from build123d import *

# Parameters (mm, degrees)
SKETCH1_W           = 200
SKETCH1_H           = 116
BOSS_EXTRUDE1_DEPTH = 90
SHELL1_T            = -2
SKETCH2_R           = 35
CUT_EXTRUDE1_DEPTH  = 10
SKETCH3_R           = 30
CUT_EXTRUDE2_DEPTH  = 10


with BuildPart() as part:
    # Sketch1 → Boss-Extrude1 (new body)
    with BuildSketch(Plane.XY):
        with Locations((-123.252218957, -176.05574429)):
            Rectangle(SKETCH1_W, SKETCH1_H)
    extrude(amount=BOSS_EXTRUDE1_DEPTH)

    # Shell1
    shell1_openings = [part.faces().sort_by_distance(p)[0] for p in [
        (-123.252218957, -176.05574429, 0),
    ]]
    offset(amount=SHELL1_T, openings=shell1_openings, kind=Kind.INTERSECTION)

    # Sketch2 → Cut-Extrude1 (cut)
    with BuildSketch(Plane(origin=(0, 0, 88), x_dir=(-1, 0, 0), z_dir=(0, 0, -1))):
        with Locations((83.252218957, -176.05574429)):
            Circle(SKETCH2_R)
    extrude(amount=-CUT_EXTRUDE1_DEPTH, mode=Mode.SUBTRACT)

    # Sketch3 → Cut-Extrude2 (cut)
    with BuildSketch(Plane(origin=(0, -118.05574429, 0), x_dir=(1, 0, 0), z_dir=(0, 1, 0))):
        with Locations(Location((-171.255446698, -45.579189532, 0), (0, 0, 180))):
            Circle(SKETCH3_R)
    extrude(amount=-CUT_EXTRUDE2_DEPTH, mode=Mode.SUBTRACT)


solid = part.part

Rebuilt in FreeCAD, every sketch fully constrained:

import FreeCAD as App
import Part
import Sketcher

V = App.Vector


def faces_at(feature, points):
    """Names of the faces that lie closest to the given points."""
    faces = feature.Shape.Faces
    near = lambda p: min(range(len(faces)), key=lambda i: faces[i].distToShape(Part.Vertex(*p))[0])
    return sorted({f"Face{near(p) + 1}" for p in points})


def add_polygon(sketch, points):
    """Adds a closed chain of lines whose ends are joined by coincident constraints."""
    first, n = sketch.GeometryCount, len(points)
    for a, b in zip(points, points[1:] + points[:1]):
        sketch.addGeometry(Part.LineSegment(App.Vector(*a, 0), App.Vector(*b, 0)), False)
    for i in range(n):
        sketch.addConstraint(Sketcher.Constraint("Coincident", first + i, 2, first + (i + 1) % n, 1))

doc = App.newDocument("Part")
params = doc.addObject("Spreadsheet::Sheet", "Params")
for row, (alias, value) in enumerate([
    ("sketch1_width", "200 mm"),
    ("sketch1_height", "116 mm"),
    ("pad1_length", "90 mm"),
    ("thickness_wall", "2 mm"),
    ("sketch2_diameter", "70 mm"),
    ("pocket1_length", "10 mm"),
    ("sketch3_diameter", "60 mm"),
    ("pocket2_length", "10 mm"),
], start=1):
    params.set(f"A{row}", alias)
    params.set(f"B{row}", "=" + value)
    params.setAlias(f"B{row}", alias)

body = doc.addObject("PartDesign::Body", "Body")

# Sketch on XY plane
sketch1 = body.newObject("Sketcher::SketchObject", "Sketch")
sketch1.AttachmentSupport = (doc.getObject("XY_Plane"), [""])
sketch1.MapMode = "FlatFace"
add_polygon(sketch1, [(-223.252219, -118.055744), (-223.252219, -234.055744), (-23.252219, -234.055744), (-23.252219, -118.055744)])  # lines 0-3
sketch1.addConstraint([
    Sketcher.Constraint("Vertical", 0),
    Sketcher.Constraint("Horizontal", 1),
    Sketcher.Constraint("Vertical", 2),
    Sketcher.Constraint("Horizontal", 3),
    Sketcher.Constraint("DistanceX", 1, 1, 1, 2, 200.0),
    Sketcher.Constraint("DistanceY", 0, 2, 0, 1, 116.0),
    Sketcher.Constraint("DistanceX", 0, 2, -1, 1, 223.252219),
    Sketcher.Constraint("DistanceY", 0, 2, -1, 1, 234.055744),
])
sketch1.setExpression("Constraints[8]", "Params.sketch1_width")
sketch1.setExpression("Constraints[9]", "Params.sketch1_height")
pad1 = body.newObject("PartDesign::Pad", "Pad")
pad1.Profile = sketch1
pad1.setExpression("Length", "Params.pad1_length")
doc.recompute()

thickness = body.newObject("PartDesign::Thickness", "Thickness")
thickness.Base = (pad1, faces_at(pad1, [(-123.252, -176.056, 0)]))
thickness.setExpression("Value", "Params.thickness_wall")
thickness.Reversed = True
thickness.Join = "Intersection"

# Sketch on XY plane
sketch2 = body.newObject("Sketcher::SketchObject", "Sketch001")
sketch2.AttachmentSupport = (doc.getObject("XY_Plane"), [""])
sketch2.MapMode = "FlatFace"
sketch2.AttachmentOffset = App.Placement(V(0, 0, 88), App.Rotation())
sketch2.addGeometry(Part.Circle(V(-83.252219, -176.055744, 0), V(0, 0, 1), 35), False)
sketch2.addConstraint([
    Sketcher.Constraint("Diameter", 0, 70.0),
    Sketcher.Constraint("DistanceX", 0, 3, -1, 1, 83.252219),
    Sketcher.Constraint("DistanceY", 0, 3, -1, 1, 176.055744),
])
sketch2.setExpression("Constraints[0]", "Params.sketch2_diameter")
pocket1 = body.newObject("PartDesign::Pocket", "Pocket")
pocket1.Profile = sketch2
pocket1.setExpression("Length", "Params.pocket1_length")
pocket1.Reversed = True

# Sketch on XZ plane
sketch3 = body.newObject("Sketcher::SketchObject", "Sketch002")
sketch3.AttachmentSupport = (doc.getObject("XZ_Plane"), [""])
sketch3.MapMode = "FlatFace"
sketch3.AttachmentOffset = App.Placement(V(0, 0, 118.055744), App.Rotation())
sketch3.addGeometry(Part.Circle(V(-171.255447, 45.57919, 0), V(0, 0, 1), 30), False)
sketch3.addConstraint([
    Sketcher.Constraint("Diameter", 0, 60.0),
    Sketcher.Constraint("DistanceY", -1, 1, 0, 3, 45.57919),
    Sketcher.Constraint("DistanceX", 0, 3, -1, 1, 171.255447),
])
sketch3.setExpression("Constraints[0]", "Params.sketch3_diameter")
pocket2 = body.newObject("PartDesign::Pocket", "Pocket001")
pocket2.Profile = sketch3
pocket2.setExpression("Length", "Params.pocket2_length")
pocket2.Reversed = True

doc.recompute()
